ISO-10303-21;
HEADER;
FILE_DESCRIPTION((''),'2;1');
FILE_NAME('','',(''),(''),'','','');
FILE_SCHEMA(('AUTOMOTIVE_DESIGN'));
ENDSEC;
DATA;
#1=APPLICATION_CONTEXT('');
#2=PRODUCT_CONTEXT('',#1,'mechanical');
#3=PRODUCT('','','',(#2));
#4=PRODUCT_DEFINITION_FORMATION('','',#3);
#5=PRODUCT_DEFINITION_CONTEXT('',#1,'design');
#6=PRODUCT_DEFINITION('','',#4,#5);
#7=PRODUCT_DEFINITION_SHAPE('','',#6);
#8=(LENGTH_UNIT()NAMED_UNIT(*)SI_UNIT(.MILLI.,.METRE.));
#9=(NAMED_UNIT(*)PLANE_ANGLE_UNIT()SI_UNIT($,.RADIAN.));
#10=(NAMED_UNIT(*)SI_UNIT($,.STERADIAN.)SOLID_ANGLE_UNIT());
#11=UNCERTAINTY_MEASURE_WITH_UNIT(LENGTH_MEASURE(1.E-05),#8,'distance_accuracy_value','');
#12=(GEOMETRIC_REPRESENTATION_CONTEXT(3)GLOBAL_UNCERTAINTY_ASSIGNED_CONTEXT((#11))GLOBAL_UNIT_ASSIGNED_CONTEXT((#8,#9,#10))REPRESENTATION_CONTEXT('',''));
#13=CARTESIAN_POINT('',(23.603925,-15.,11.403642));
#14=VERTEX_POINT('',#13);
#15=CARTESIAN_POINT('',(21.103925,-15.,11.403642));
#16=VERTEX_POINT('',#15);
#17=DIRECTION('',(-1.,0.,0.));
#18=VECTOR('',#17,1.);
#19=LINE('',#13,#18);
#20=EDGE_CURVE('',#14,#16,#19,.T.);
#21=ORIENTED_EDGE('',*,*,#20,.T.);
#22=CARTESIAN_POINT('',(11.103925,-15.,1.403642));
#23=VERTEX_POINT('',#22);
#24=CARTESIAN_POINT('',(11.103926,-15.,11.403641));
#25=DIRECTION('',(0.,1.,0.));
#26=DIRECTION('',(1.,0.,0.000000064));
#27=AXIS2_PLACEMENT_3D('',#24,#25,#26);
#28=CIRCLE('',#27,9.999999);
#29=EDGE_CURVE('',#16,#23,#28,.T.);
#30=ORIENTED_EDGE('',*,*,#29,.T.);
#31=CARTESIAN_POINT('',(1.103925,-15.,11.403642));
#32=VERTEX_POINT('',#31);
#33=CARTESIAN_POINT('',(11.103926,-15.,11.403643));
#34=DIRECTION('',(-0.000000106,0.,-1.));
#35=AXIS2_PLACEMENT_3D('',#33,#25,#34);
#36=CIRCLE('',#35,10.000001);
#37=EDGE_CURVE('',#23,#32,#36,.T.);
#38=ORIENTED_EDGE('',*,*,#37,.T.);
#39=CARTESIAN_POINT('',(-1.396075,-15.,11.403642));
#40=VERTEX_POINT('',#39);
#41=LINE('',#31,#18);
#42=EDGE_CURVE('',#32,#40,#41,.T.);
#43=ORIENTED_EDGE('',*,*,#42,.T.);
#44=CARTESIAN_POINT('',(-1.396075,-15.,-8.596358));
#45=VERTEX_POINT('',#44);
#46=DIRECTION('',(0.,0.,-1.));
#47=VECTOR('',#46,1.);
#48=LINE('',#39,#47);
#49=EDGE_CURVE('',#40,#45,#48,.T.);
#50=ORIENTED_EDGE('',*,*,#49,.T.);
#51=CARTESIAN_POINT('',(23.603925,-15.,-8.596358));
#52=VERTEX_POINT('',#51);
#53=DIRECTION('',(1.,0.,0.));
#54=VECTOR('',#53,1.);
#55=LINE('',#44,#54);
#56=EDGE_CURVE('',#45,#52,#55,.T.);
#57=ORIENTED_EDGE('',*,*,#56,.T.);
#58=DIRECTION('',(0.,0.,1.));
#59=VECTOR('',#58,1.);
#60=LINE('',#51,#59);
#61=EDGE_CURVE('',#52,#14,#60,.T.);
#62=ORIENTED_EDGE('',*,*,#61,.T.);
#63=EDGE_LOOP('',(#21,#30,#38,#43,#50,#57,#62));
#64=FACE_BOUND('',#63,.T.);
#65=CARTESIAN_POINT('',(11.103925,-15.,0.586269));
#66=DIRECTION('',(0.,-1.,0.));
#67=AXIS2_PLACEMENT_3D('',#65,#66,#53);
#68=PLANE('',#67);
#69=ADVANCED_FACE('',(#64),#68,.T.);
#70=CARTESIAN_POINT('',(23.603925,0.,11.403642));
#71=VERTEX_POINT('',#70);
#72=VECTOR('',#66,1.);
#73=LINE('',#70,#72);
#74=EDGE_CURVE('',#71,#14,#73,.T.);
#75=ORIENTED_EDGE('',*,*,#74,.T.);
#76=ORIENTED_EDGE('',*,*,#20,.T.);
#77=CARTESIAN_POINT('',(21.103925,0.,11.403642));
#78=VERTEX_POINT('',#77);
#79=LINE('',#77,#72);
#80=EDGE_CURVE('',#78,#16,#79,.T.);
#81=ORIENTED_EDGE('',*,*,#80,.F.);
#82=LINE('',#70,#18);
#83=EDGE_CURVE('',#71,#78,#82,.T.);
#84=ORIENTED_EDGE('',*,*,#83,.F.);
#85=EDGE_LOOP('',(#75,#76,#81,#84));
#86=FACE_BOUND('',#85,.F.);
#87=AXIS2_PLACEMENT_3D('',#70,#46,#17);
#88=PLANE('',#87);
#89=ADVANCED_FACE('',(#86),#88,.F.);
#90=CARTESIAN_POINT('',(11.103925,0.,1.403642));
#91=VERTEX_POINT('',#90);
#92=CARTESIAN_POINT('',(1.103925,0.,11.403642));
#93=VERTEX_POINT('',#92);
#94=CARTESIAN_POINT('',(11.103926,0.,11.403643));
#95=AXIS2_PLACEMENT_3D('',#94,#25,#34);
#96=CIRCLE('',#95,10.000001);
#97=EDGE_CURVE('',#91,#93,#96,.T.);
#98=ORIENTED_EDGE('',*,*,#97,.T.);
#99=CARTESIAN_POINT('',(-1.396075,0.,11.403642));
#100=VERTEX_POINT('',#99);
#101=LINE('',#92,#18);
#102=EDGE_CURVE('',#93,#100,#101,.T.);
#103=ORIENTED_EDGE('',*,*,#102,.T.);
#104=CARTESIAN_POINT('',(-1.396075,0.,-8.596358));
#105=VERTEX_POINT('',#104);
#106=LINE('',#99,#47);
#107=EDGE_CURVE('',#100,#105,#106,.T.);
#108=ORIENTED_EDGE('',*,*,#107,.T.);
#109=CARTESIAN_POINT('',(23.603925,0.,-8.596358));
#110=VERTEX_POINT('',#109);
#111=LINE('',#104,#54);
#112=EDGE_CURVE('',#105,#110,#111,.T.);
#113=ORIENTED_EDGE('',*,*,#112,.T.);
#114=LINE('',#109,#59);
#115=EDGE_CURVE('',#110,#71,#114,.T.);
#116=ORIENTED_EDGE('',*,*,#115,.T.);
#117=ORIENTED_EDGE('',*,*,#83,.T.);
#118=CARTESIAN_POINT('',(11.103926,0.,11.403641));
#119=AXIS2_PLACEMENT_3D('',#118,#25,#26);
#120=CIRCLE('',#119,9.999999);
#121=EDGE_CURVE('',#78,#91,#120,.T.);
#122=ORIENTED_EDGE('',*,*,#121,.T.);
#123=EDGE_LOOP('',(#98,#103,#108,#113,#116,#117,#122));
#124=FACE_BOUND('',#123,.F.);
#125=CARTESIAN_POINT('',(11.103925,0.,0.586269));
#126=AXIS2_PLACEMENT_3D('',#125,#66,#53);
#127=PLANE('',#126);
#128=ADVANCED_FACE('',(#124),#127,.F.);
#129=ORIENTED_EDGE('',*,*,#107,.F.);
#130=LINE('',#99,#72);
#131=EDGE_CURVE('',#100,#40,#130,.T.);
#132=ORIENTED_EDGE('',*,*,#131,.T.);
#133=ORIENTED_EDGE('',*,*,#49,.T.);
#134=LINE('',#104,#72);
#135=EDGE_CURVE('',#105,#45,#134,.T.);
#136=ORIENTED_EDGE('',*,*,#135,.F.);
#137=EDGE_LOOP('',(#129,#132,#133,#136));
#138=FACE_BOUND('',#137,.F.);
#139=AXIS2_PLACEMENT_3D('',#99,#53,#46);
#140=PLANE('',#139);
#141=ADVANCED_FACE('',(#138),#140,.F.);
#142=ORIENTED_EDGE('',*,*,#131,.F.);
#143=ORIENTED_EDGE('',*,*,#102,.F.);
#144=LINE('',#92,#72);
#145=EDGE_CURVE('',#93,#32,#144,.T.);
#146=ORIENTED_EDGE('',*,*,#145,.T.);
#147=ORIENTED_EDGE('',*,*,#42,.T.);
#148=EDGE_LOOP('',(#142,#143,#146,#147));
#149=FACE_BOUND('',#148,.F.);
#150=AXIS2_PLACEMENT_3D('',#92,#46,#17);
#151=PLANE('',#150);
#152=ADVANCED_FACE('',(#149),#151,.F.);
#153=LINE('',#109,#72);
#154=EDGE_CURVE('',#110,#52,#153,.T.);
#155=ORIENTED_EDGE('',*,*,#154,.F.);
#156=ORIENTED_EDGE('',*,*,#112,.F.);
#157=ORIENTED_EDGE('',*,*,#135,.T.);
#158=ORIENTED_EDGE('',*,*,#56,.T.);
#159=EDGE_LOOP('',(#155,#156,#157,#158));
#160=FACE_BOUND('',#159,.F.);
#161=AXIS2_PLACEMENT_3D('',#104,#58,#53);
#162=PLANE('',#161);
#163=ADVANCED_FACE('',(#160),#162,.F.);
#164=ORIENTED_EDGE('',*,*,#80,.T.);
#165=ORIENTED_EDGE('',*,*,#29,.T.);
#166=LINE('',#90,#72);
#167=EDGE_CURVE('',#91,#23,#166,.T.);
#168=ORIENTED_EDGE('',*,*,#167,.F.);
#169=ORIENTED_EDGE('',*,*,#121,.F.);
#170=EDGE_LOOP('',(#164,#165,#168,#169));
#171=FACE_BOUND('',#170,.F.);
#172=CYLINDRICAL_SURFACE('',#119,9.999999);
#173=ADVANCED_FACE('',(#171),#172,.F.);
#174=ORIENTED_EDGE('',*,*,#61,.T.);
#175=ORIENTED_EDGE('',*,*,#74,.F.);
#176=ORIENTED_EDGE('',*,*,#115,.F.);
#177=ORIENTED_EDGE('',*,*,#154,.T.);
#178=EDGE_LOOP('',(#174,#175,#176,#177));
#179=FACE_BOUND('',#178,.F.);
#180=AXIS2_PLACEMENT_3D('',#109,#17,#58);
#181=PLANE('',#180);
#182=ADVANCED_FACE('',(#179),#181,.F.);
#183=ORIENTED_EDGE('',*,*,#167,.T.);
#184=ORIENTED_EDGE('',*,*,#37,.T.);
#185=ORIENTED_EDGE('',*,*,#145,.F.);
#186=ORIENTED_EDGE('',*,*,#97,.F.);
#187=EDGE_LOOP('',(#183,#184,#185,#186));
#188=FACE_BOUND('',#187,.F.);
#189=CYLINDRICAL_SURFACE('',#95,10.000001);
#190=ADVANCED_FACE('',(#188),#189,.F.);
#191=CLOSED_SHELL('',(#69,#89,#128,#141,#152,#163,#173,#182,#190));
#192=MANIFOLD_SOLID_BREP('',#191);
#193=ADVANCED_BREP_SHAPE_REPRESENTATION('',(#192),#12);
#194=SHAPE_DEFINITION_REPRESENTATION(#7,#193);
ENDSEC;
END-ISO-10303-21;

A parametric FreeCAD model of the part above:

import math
import FreeCAD as App
import Part
import Sketcher

V = App.Vector
Q = App.Units.Quantity

doc = App.newDocument("Part")
params = doc.addObject("Spreadsheet::Sheet", "Params")
for row, (alias, value) in enumerate([
    ("sketch1_radius", "9.999999 mm"),
    ("sketch1_width", "25 mm"),
    ("sketch1_height", "20 mm"),
    ("pad1_length", "15 mm"),
], start=1):
    params.set(f"A{row}", alias)
    params.set(f"B{row}", "=" + value)
    params.setAlias(f"B{row}", alias)

body = doc.addObject("PartDesign::Body", "Body")

sketch1 = doc.addObject("Sketcher::SketchObject", "Sketch")
body.addObject(sketch1)
sketch1.AttachmentSupport = (doc.XZ_Plane, [""])
sketch1.MapMode = "FlatFace"
sketch1.addGeometry([
    Part.LineSegment(V(23.603925, 11.403642, 0), V(21.103925, 11.403642, 0)),
    Part.ArcOfCircle(Part.Circle(V(11.103926, 11.403641, 0), V(0, 0, 1), 9.999999), math.radians(-90.000004), math.radians(0.000004)),
    Part.ArcOfCircle(Part.Circle(V(11.103926, 11.403643, 0), V(0, 0, 1), 10.000001), math.radians(-179.999994), math.radians(-90.000006)),
    Part.LineSegment(V(1.103925, 11.403642, 0), V(-1.396075, 11.403642, 0)),
    Part.LineSegment(V(-1.396075, 11.403642, 0), V(-1.396075, -8.596358, 0)),
    Part.LineSegment(V(-1.396075, -8.596358, 0), V(23.603925, -8.596358, 0)),
    Part.LineSegment(V(23.603925, -8.596358, 0), V(23.603925, 11.403642, 0)),
], False)
sketch1.addConstraint([
    Sketcher.Constraint("Coincident", 0, 2, 1, 2),
    Sketcher.Constraint("Tangent", 1, 1, 2, 2),
    Sketcher.Constraint("Coincident", 2, 1, 3, 1),
    Sketcher.Constraint("Coincident", 3, 2, 4, 1),
    Sketcher.Constraint("Coincident", 4, 2, 5, 1),
    Sketcher.Constraint("Coincident", 5, 2, 6, 1),
    Sketcher.Constraint("Coincident", 6, 2, 0, 1),
    Sketcher.Constraint("Horizontal", 0),
    Sketcher.Constraint("Horizontal", 3),
    Sketcher.Constraint("Vertical", 4),
    Sketcher.Constraint("Horizontal", 5),
    Sketcher.Constraint("Vertical", 6),
    Sketcher.Constraint("Equal", 1, 2),
    Sketcher.Constraint("Horizontal", 2, 3, 0, 2),
    Sketcher.Constraint("Horizontal", 0, 2, 2, 1),
    Sketcher.Constraint("Vertical", 2, 3, 1, 1),
    Sketcher.Constraint("Equal", 0, 3),
    Sketcher.Constraint("Radius", 1, Q("9.999999 mm")),
    Sketcher.Constraint("DistanceX", 5, 1, 5, 2, Q("25 mm")),
    Sketcher.Constraint("DistanceY", 4, 2, 4, 1, Q("20 mm")),
    Sketcher.Constraint("DistanceY", -1, 1, 1, 3, Q("11.403641 mm")),
    Sketcher.Constraint("DistanceX", -1, 1, 1, 3, Q("11.103926 mm")),
])
sketch1.setExpression("Constraints[17]", "Params.sketch1_radius")
sketch1.setExpression("Constraints[18]", "Params.sketch1_width")
sketch1.setExpression("Constraints[19]", "Params.sketch1_height")
pad1 = doc.addObject("PartDesign::Pad", "Pad")
body.addObject(pad1)
pad1.Profile = sketch1
pad1.setExpression("Length", "Params.pad1_length")

doc.recompute()
